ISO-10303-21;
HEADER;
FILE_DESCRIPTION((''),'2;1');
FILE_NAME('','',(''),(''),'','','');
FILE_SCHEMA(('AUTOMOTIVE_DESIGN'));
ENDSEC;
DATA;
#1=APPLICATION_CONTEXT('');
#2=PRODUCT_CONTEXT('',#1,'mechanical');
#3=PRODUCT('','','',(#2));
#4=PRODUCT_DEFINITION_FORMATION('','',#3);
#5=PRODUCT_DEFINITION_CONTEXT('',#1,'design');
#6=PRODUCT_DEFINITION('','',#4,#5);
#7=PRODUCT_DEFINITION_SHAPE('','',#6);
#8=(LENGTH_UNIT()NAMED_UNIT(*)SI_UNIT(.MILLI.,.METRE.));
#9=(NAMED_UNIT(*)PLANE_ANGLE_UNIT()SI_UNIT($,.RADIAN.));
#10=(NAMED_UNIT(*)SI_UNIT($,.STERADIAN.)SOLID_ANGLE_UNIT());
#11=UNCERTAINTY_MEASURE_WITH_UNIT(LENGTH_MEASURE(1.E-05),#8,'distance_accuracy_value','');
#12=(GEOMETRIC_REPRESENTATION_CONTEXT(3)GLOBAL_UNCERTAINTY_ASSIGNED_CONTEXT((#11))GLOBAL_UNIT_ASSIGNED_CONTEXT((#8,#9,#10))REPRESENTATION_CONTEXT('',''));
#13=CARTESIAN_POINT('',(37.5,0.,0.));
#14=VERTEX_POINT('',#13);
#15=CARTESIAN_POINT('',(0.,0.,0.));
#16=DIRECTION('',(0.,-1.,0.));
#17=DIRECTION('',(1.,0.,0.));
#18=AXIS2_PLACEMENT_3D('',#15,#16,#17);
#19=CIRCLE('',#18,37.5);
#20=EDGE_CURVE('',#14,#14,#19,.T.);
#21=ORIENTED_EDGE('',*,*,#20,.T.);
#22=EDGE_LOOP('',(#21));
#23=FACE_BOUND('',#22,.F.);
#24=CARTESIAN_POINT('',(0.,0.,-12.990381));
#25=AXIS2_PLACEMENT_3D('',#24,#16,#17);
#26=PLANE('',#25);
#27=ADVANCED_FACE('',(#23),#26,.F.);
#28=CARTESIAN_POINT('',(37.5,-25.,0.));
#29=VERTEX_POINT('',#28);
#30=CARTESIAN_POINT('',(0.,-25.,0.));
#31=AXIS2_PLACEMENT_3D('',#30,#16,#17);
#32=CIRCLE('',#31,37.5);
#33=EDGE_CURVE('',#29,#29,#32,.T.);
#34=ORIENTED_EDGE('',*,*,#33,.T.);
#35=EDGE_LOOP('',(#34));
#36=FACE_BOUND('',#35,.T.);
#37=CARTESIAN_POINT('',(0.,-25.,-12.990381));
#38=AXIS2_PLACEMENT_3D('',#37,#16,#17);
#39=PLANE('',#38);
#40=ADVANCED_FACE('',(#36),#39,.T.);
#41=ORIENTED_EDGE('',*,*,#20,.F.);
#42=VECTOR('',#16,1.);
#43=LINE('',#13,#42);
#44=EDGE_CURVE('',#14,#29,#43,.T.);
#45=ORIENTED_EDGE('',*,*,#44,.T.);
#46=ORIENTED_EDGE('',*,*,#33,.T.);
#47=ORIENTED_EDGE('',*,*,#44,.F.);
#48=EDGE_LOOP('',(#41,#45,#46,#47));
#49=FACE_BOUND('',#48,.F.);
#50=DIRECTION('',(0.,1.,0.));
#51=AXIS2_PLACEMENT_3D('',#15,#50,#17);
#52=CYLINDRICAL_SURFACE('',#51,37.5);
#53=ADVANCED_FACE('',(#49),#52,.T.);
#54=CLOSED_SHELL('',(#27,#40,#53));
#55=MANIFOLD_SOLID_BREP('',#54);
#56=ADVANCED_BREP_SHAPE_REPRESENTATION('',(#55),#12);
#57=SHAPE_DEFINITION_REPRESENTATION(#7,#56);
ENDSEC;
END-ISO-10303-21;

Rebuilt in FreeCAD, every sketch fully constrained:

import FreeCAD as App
import Part
import Sketcher
from FreeCAD import Vector
Q = App.Units.Quantity

doc = App.newDocument("Part")
body = doc.addObject("PartDesign::Body", "Body")

# Sketch on XZ plane
sketch1 = doc.addObject("Sketcher::SketchObject", "Sketch")
body.addObject(sketch1)
sketch1.AttachmentSupport = (doc.XZ_Plane, [""])
sketch1.MapMode = "FlatFace"
sketch1.addGeometry(Part.Circle(Vector(0, 0, 0), Vector(0, 0, 1), 38), False)
sketch1.addConstraint(Sketcher.Constraint("Coincident", 0, 3, -1, 1))
sketch1.addConstraint(Sketcher.Constraint("Diameter", 0, Q("75 mm")))
pad1 = doc.addObject("PartDesign::Pad", "Pad")
body.addObject(pad1)
pad1.Profile = sketch1
pad1.Length = 25

doc.recompute()
